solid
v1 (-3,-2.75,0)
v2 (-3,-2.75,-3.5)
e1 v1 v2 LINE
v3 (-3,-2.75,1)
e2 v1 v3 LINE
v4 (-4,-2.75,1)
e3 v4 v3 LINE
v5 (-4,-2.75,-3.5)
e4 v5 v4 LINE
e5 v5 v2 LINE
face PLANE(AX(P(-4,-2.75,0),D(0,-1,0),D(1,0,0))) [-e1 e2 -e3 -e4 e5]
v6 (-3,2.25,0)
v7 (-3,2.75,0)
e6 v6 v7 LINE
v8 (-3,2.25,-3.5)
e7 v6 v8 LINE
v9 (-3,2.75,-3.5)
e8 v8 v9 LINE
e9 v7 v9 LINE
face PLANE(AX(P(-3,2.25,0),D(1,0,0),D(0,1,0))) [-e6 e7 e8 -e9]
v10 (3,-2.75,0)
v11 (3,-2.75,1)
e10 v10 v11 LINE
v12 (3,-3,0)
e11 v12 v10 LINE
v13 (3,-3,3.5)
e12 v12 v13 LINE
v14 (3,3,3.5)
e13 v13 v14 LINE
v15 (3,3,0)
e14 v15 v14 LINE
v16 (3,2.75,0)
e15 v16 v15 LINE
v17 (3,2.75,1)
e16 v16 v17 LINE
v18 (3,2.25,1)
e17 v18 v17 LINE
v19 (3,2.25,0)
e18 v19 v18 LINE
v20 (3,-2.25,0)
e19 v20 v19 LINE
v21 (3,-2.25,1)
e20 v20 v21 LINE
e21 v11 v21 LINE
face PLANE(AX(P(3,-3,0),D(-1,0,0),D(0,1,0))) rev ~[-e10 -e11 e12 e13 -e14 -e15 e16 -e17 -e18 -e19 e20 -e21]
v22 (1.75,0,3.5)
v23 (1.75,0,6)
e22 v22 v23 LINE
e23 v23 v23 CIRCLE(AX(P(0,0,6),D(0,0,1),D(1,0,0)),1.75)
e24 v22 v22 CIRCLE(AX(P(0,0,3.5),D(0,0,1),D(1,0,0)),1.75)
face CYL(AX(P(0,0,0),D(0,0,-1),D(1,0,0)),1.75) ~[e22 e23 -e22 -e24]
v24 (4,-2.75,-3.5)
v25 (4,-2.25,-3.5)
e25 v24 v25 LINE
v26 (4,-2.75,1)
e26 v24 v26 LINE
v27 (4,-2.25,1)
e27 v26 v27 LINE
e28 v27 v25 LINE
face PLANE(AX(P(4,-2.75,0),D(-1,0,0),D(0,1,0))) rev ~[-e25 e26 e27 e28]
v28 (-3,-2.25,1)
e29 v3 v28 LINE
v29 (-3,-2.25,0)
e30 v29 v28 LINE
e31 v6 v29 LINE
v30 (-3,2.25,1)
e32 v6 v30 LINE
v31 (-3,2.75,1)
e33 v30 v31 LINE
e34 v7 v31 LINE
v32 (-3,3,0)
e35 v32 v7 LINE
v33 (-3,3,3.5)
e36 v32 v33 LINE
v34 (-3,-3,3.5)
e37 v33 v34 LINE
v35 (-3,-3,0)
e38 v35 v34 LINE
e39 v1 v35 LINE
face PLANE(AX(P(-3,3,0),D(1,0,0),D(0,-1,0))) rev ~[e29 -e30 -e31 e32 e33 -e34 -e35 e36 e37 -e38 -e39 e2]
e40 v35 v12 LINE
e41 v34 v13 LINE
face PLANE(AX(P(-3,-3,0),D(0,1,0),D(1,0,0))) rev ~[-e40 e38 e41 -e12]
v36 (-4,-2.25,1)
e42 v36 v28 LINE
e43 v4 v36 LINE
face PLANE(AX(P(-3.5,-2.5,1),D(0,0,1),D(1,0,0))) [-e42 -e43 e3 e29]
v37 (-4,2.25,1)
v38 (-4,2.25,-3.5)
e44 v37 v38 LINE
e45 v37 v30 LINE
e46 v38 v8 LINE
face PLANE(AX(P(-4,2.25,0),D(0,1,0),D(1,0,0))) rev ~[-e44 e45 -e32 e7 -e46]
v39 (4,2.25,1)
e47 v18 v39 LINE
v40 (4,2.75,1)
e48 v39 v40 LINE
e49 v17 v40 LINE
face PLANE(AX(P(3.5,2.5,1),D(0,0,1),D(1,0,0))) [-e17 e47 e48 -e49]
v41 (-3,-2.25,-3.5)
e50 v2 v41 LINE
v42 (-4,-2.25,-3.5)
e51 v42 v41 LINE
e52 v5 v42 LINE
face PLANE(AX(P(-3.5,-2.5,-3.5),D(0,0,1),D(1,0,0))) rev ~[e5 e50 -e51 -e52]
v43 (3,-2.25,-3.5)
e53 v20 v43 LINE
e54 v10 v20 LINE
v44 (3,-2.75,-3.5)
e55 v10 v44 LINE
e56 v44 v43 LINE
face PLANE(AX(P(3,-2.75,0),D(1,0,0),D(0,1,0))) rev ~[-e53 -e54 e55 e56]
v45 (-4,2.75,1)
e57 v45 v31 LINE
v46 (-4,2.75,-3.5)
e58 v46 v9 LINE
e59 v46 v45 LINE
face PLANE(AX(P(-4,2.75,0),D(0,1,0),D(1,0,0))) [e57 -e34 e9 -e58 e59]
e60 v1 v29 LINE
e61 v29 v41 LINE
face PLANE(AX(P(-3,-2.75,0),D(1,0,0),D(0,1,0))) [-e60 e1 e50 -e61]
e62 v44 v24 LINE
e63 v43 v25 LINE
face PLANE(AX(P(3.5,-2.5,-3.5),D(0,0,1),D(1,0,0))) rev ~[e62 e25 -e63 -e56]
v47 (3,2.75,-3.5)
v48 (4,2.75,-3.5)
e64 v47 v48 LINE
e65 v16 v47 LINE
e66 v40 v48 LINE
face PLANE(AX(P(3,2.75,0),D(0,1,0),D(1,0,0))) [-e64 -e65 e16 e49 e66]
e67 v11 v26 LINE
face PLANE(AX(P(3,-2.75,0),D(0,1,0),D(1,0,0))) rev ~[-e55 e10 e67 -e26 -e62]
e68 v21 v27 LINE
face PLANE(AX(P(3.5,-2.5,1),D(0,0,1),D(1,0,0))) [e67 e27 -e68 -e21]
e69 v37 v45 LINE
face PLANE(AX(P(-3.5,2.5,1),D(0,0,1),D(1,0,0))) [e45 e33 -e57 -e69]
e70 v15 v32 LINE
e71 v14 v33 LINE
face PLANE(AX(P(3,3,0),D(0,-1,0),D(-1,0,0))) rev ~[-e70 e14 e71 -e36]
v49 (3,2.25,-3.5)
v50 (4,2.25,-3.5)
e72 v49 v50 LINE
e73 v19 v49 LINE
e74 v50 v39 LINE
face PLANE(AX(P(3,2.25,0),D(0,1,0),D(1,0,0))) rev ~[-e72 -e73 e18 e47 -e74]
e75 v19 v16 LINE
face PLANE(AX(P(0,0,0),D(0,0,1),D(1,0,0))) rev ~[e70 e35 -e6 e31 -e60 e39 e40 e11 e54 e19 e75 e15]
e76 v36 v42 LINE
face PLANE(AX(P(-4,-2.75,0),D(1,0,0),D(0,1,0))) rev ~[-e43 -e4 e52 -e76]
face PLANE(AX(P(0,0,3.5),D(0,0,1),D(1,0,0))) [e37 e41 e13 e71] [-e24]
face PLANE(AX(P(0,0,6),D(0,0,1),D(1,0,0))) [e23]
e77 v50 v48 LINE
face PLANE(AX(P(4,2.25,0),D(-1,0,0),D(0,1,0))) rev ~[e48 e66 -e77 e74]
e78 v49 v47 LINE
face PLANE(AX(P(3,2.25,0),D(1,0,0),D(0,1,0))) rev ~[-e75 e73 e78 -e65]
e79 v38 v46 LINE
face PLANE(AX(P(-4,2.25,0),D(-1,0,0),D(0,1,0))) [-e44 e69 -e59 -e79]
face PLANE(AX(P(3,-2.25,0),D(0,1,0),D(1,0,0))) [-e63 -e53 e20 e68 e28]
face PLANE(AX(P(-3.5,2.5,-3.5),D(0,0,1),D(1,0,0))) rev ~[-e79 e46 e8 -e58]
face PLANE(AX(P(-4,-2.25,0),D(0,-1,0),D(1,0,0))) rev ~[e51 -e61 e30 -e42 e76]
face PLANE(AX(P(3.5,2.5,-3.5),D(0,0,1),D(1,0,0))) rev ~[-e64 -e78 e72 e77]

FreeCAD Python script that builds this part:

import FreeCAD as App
import Part
import Sketcher

doc = App.newDocument("Part")
params = doc.addObject("Spreadsheet::Sheet", "Params")
for row, (alias, value) in enumerate([
    ("sketch1_diameter", "3.5 mm"),
    ("sketch1_width", "6 mm"),
    ("pad1_length", "3.5 mm"),
    ("sketch2_diameter", "3.5 mm"),
    ("pad2_length", "6 mm"),
    ("sketch3_width", "1 mm"),
    ("sketch3_height", "0.5 mm"),
    ("pad3_length", "1 mm"),
    ("pad3_length2", "3.5 mm"),
], start=1):
    params.set(f"A{row}", alias)
    params.set(f"B{row}", "=" + value)
    params.setAlias(f"B{row}", alias)

body = doc.addObject("PartDesign::Body", "Body")

# Sketch on XY plane
sketch1 = body.newObject("Sketcher::SketchObject", "Sketch")
sketch1.AttachmentSupport = (doc.getObject("XY_Plane"), [""])
sketch1.MapMode = "FlatFace"
sketch1.addGeometry([
    Part.LineSegment(App.Vector(3, 3, 0), App.Vector(-3, 3, 0)),  # 0
    Part.LineSegment(App.Vector(-3, 3, 0), App.Vector(-3, -3, 0)),  # 1
    Part.LineSegment(App.Vector(-3, -3, 0), App.Vector(3, -3, 0)),  # 2
    Part.LineSegment(App.Vector(3, -3, 0), App.Vector(3, 3, 0)),  # 3
    Part.Circle(App.Vector(0, 0, 0), App.Vector(0, 0, 1), 1.8),  # 4
], False)
sketch1.addConstraint([
    Sketcher.Constraint("Coincident", 0, 2, 1, 1),
    Sketcher.Constraint("Coincident", 1, 2, 2, 1),
    Sketcher.Constraint("Coincident", 2, 2, 3, 1),
    Sketcher.Constraint("Coincident", 3, 2, 0, 1),
    Sketcher.Constraint("Horizontal", 0),
    Sketcher.Constraint("Vertical", 1),
    Sketcher.Constraint("Horizontal", 2),
    Sketcher.Constraint("Vertical", 3),
    Sketcher.Constraint("Coincident", 4, 3, -1, 1),
    Sketcher.Constraint("Symmetric", 0, 2, 2, 2, -1, 1),
    Sketcher.Constraint("Equal", 2, 1),
    Sketcher.Constraint("Diameter", 4, 3.5),
    Sketcher.Constraint("DistanceX", 0, 2, 0, 1, 6.0),
])
sketch1.setExpression("Constraints[11]", "Params.sketch1_diameter")
sketch1.setExpression("Constraints[12]", "Params.sketch1_width")
pad1 = body.newObject("PartDesign::Pad", "Pad")
pad1.Profile = sketch1
pad1.setExpression("Length", "Params.pad1_length")

# Sketch on XY plane
sketch2 = body.newObject("Sketcher::SketchObject", "Sketch001")
sketch2.AttachmentSupport = (doc.getObject("XY_Plane"), [""])
sketch2.MapMode = "FlatFace"
sketch2.addGeometry(Part.Circle(App.Vector(0, 0, 0), App.Vector(0, 0, 1), 1.8), False)
sketch2.addConstraint([
    Sketcher.Constraint("Coincident", 0, 3, -1, 1),
    Sketcher.Constraint("Diameter", 0, 3.5),
])
sketch2.setExpression("Constraints[1]", "Params.sketch2_diameter")
pad2 = body.newObject("PartDesign::Pad", "Pad001")
pad2.Profile = sketch2
pad2.setExpression("Length", "Params.pad2_length")

# Sketch on XY plane
sketch3 = body.newObject("Sketcher::SketchObject", "Sketch002")
sketch3.AttachmentSupport = (doc.getObject("XY_Plane"), [""])
sketch3.MapMode = "FlatFace"
sketch3.addGeometry([
    Part.LineSegment(App.Vector(-4, -2.2, 0), App.Vector(-4, -2.8, 0)),  # 0
    Part.LineSegment(App.Vector(-4, -2.8, 0), App.Vector(-3, -2.8, 0)),  # 1
    Part.LineSegment(App.Vector(-3, -2.8, 0), App.Vector(-3, -2.2, 0)),  # 2
    Part.LineSegment(App.Vector(-3, -2.2, 0), App.Vector(-4, -2.2, 0)),  # 3
    Part.LineSegment(App.Vector(-4, 2.8, 0), App.Vector(-4, 2.2, 0)),  # 4
    Part.LineSegment(App.Vector(-4, 2.2, 0), App.Vector(-3, 2.2, 0)),  # 5
    Part.LineSegment(App.Vector(-3, 2.2, 0), App.Vector(-3, 2.8, 0)),  # 6
    Part.LineSegment(App.Vector(-3, 2.8, 0), App.Vector(-4, 2.8, 0)),  # 7
    Part.LineSegment(App.Vector(3, 2.8, 0), App.Vector(3, 2.2, 0)),  # 8
    Part.LineSegment(App.Vector(3, 2.2, 0), App.Vector(4, 2.2, 0)),  # 9
    Part.LineSegment(App.Vector(4, 2.2, 0), App.Vector(4, 2.8, 0)),  # 10
    Part.LineSegment(App.Vector(4, 2.8, 0), App.Vector(3, 2.8, 0)),  # 11
    Part.LineSegment(App.Vector(3, -2.2, 0), App.Vector(3, -2.8, 0)),  # 12
    Part.LineSegment(App.Vector(3, -2.8, 0), App.Vector(4, -2.8, 0)),  # 13
    Part.LineSegment(App.Vector(4, -2.8, 0), App.Vector(4, -2.2, 0)),  # 14
    Part.LineSegment(App.Vector(4, -2.2, 0), App.Vector(3, -2.2, 0)),  # 15
], False)
sketch3.addConstraint([
    Sketcher.Constraint("Coincident", 0, 2, 1, 1),
    Sketcher.Constraint("Coincident", 1, 2, 2, 1),
    Sketcher.Constraint("Coincident", 2, 2, 3, 1),
    Sketcher.Constraint("Coincident", 3, 2, 0, 1),
    Sketcher.Constraint("Coincident", 4, 2, 5, 1),
    Sketcher.Constraint("Coincident", 5, 2, 6, 1),
    Sketcher.Constraint("Coincident", 6, 2, 7, 1),
    Sketcher.Constraint("Coincident", 7, 2, 4, 1),
    Sketcher.Constraint("Coincident", 8, 2, 9, 1),
    Sketcher.Constraint("Coincident", 9, 2, 10, 1),
    Sketcher.Constraint("Coincident", 10, 2, 11, 1),
    Sketcher.Constraint("Coincident", 11, 2, 8, 1),
    Sketcher.Constraint("Coincident", 12, 2, 13, 1),
    Sketcher.Constraint("Coincident", 13, 2, 14, 1),
    Sketcher.Constraint("Coincident", 14, 2, 15, 1),
    Sketcher.Constraint("Coincident", 15, 2, 12, 1),
    Sketcher.Constraint("Vertical", 0),
    Sketcher.Constraint("Horizontal", 1),
    Sketcher.Constraint("Vertical", 2),
    Sketcher.Constraint("Horizontal", 3),
    Sketcher.Constraint("Vertical", 4),
    Sketcher.Constraint("Horizontal", 5),
    Sketcher.Constraint("Vertical", 6),
    Sketcher.Constraint("Horizontal", 7),
    Sketcher.Constraint("Vertical", 8),
    Sketcher.Constraint("Horizontal", 9),
    Sketcher.Constraint("Vertical", 10),
    Sketcher.Constraint("Horizontal", 11),
    Sketcher.Constraint("Vertical", 12),
    Sketcher.Constraint("Horizontal", 13),
    Sketcher.Constraint("Vertical", 14),
    Sketcher.Constraint("Horizontal", 15),
    Sketcher.Constraint("Symmetric", 2, 2, 8, 2, -1, 1),
    Sketcher.Constraint("Symmetric", 0, 2, 10, 2, -1, 1),
    Sketcher.Constraint("Symmetric", 6, 2, 12, 2, -1, 1),
    Sketcher.Constraint("Symmetric", 4, 2, 14, 2, -1, 1),
    Sketcher.Constraint("Symmetric", 5, 2, 8, 2, -2),
    Sketcher.Constraint("Symmetric", 7, 2, 10, 2, -2),
    Sketcher.Constraint("DistanceX", 1, 1, 1, 2, 1.0),
    Sketcher.Constraint("DistanceY", 0, 2, 0, 1, 0.5),
    Sketcher.Constraint("DistanceX", 0, 2, -1, 1, 4.0),
    Sketcher.Constraint("DistanceY", 0, 2, 4, 2, 5.0),
])
sketch3.setExpression("Constraints[38]", "Params.sketch3_width")
sketch3.setExpression("Constraints[39]", "Params.sketch3_height")
pad3 = body.newObject("PartDesign::Pad", "Pad002")
pad3.Profile = sketch3
pad3.Type = "TwoLengths"
pad3.setExpression("Length", "Params.pad3_length")
pad3.setExpression("Length2", "Params.pad3_length2")

doc.recompute()
